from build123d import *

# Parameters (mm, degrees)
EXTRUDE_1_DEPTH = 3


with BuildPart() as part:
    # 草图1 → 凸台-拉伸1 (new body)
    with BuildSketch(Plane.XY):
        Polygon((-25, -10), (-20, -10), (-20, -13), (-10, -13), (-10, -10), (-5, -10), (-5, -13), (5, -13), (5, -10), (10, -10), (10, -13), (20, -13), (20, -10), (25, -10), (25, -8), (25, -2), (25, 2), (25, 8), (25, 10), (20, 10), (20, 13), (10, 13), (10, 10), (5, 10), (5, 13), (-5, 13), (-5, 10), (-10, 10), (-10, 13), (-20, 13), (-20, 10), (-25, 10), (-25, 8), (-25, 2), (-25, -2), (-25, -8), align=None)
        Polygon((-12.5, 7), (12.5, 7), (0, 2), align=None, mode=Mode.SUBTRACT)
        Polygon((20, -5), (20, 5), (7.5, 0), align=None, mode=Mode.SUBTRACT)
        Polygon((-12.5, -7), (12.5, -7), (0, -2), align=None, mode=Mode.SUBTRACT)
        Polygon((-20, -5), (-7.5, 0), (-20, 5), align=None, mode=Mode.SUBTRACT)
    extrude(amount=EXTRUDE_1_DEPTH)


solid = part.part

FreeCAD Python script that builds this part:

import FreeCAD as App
import Part
import Sketcher
Q = App.Units.Quantity


def add_polygon(sketch, points):
    """Adds a closed chain of lines whose ends are joined by coincident constraints."""
    first, n = sketch.GeometryCount, len(points)
    for a, b in zip(points, points[1:] + points[:1]):
        sketch.addGeometry(Part.LineSegment(App.Vector(*a, 0), App.Vector(*b, 0)), False)
    for i in range(n):
        sketch.addConstraint(Sketcher.Constraint("Coincident", first + i, 2, first + (i + 1) % n, 1))

doc = App.newDocument("Part")
body = doc.addObject("PartDesign::Body", "Body")

# Sketch on XY plane
sketch1 = body.newObject("Sketcher::SketchObject", "Sketch")
sketch1.AttachmentSupport = (doc.getObject("XY_Plane"), [""])
sketch1.MapMode = "FlatFace"
add_polygon(sketch1, [(-25, -10), (-20, -10), (-20, -13), (-10, -13), (-10, -10), (-5, -10), (-5, -13), (5, -13), (5, -10), (10, -10), (10, -13), (20, -13), (20, -10), (25, -10), (25, 10), (20, 10), (20, 13), (10, 13), (10, 10), (5, 10), (5, 13), (-5, 13), (-5, 10), (-10, 10), (-10, 13), (-20, 13), (-20, 10), (-25, 10)])  # lines 0-27
add_polygon(sketch1, [(12.5, -7), (-12.5, -7), (0, -2)])  # lines 28-30
add_polygon(sketch1, [(-7.5, 0), (-20, -5), (-20, 5)])  # lines 31-33
add_polygon(sketch1, [(20, 5), (20, -5), (7.5, 0)])  # lines 34-36
add_polygon(sketch1, [(0, 2), (-12.5, 7), (12.5, 7)])  # lines 37-39
sketch1.addConstraint(Sketcher.Constraint("Horizontal", 0))
sketch1.addConstraint(Sketcher.Constraint("Vertical", 1))
sketch1.addConstraint(Sketcher.Constraint("Horizontal", 2))
sketch1.addConstraint(Sketcher.Constraint("Vertical", 3))
sketch1.addConstraint(Sketcher.Constraint("Horizontal", 4))
sketch1.addConstraint(Sketcher.Constraint("Vertical", 5))
sketch1.addConstraint(Sketcher.Constraint("Horizontal", 6))
sketch1.addConstraint(Sketcher.Constraint("Vertical", 7))
sketch1.addConstraint(Sketcher.Constraint("Horizontal", 8))
sketch1.addConstraint(Sketcher.Constraint("Vertical", 9))
sketch1.addConstraint(Sketcher.Constraint("Horizontal", 10))
sketch1.addConstraint(Sketcher.Constraint("Vertical", 11))
sketch1.addConstraint(Sketcher.Constraint("Horizontal", 12))
sketch1.addConstraint(Sketcher.Constraint("Vertical", 13))
sketch1.addConstraint(Sketcher.Constraint("Horizontal", 14))
sketch1.addConstraint(Sketcher.Constraint("Vertical", 15))
sketch1.addConstraint(Sketcher.Constraint("Horizontal", 16))
sketch1.addConstraint(Sketcher.Constraint("Vertical", 17))
sketch1.addConstraint(Sketcher.Constraint("Horizontal", 18))
sketch1.addConstraint(Sketcher.Constraint("Vertical", 19))
sketch1.addConstraint(Sketcher.Constraint("Horizontal", 20))
sketch1.addConstraint(Sketcher.Constraint("Vertical", 21))
sketch1.addConstraint(Sketcher.Constraint("Horizontal", 22))
sketch1.addConstraint(Sketcher.Constraint("Vertical", 23))
sketch1.addConstraint(Sketcher.Constraint("Horizontal", 24))
sketch1.addConstraint(Sketcher.Constraint("Vertical", 25))
sketch1.addConstraint(Sketcher.Constraint("Horizontal", 26))
sketch1.addConstraint(Sketcher.Constraint("Vertical", 27))
sketch1.addConstraint(Sketcher.Constraint("Horizontal", 28))
sketch1.addConstraint(Sketcher.Constraint("Vertical", 32))
sketch1.addConstraint(Sketcher.Constraint("Vertical", 34))
sketch1.addConstraint(Sketcher.Constraint("Horizontal", 38))
sketch1.addConstraint(Sketcher.Constraint("Symmetric", 0, 2, 14, 2, -1, 1))
sketch1.addConstraint(Sketcher.Constraint("Symmetric", 2, 2, 16, 2, -1, 1))
sketch1.addConstraint(Sketcher.Constraint("Symmetric", 4, 2, 18, 2, -1, 1))
sketch1.addConstraint(Sketcher.Constraint("Symmetric", 6, 2, 20, 2, -1, 1))
sketch1.addConstraint(Sketcher.Constraint("Symmetric", 8, 2, 22, 2, -1, 1))
sketch1.addConstraint(Sketcher.Constraint("Symmetric", 10, 2, 24, 2, -1, 1))
sketch1.addConstraint(Sketcher.Constraint("Symmetric", 12, 2, 26, 2, -1, 1))
sketch1.addConstraint(Sketcher.Constraint("Symmetric", 32, 2, 34, 2, -1, 1))
sketch1.addConstraint(Sketcher.Constraint("Symmetric", 33, 2, 35, 2, -1, 1))
sketch1.addConstraint(Sketcher.Constraint("Symmetric", 30, 2, 37, 2, -1, 1))
sketch1.addConstraint(Sketcher.Constraint("Symmetric", 29, 2, 39, 2, -1, 1))
sketch1.addConstraint(Sketcher.Constraint("Symmetric", 4, 2, 7, 2, -2))
sketch1.addConstraint(Sketcher.Constraint("Symmetric", 2, 2, 9, 2, -2))
sketch1.addConstraint(Sketcher.Constraint("Symmetric", 0, 2, 11, 2, -2))
sketch1.addConstraint(Sketcher.Constraint("PointOnObject", 29, 2, -2))
sketch1.addConstraint(Sketcher.Constraint("PointOnObject", 33, 2, -1))
sketch1.addConstraint(Sketcher.Constraint("Parallel", 29, 31))
sketch1.addConstraint(Sketcher.Constraint("Parallel", 30, 33))
sketch1.addConstraint(Sketcher.Constraint("Parallel", 31, 36))
sketch1.addConstraint(Sketcher.Constraint("Parallel", 36, 39))
sketch1.addConstraint(Sketcher.Constraint("Horizontal", 0, 2, 3, 2))
sketch1.addConstraint(Sketcher.Constraint("Horizontal", 2, 2, 5, 2))
sketch1.addConstraint(Sketcher.Constraint("Horizontal", 31, 2, 34, 2))
sketch1.addConstraint(Sketcher.Constraint("Vertical", 25, 2, 31, 2))
sketch1.addConstraint(Sketcher.Constraint("Equal", 0, 4))
sketch1.addConstraint(Sketcher.Constraint("Equal", 2, 6))
sketch1.addConstraint(Sketcher.Constraint("Equal", 24, 32))
sketch1.addConstraint(Sketcher.Constraint("Equal", 30, 31))
sketch1.addConstraint(Sketcher.Constraint("DistanceX", 0, 1, 0, 2, Q("5 mm")))
sketch1.addConstraint(Sketcher.Constraint("DistanceX", 2, 1, 2, 2, Q("10 mm")))
sketch1.addConstraint(Sketcher.Constraint("DistanceX", 28, 2, 28, 1, Q("25 mm")))
sketch1.addConstraint(Sketcher.Constraint("DistanceY", 1, 2, 1, 1, Q("3 mm")))
sketch1.addConstraint(Sketcher.Constraint("DistanceY", 13, 1, 13, 2, Q("20 mm")))
sketch1.addConstraint(Sketcher.Constraint("DistanceY", 28, 2, -1, 1, Q("7 mm")))
pad1 = body.newObject("PartDesign::Pad", "Pad")
pad1.Profile = sketch1
pad1.Length = 3

doc.recompute()
